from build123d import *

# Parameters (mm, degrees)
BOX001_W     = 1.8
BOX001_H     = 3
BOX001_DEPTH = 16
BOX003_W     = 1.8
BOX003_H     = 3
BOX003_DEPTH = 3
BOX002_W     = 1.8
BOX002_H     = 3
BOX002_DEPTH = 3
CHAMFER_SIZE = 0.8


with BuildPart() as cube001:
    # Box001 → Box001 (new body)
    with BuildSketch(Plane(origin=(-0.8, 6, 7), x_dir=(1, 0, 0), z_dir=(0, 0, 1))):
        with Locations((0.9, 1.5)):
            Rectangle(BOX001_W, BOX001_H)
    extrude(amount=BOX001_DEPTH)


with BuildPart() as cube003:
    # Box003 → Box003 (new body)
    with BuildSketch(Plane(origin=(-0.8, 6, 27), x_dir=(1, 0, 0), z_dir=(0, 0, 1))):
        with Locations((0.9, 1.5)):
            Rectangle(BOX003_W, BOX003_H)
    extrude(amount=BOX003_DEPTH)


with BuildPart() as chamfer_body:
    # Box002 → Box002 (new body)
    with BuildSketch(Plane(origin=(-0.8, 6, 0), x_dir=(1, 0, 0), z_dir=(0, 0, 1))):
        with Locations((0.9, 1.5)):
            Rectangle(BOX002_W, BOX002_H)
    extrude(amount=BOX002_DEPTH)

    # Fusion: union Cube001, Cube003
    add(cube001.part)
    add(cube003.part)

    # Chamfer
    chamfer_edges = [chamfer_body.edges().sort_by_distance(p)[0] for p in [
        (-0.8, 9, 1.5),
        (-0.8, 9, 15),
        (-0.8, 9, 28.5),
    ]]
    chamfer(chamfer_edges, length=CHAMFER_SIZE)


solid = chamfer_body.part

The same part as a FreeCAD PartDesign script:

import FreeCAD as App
import Part
import Sketcher
from FreeCAD import Vector
Q = App.Units.Quantity


def edges_at(feature, points):
    """Names of the edges that pass closest to the given points."""
    edges = feature.Shape.Edges
    near = lambda p: min(range(len(edges)), key=lambda i: edges[i].distToShape(Part.Vertex(*p))[0])
    return sorted({f"Edge{near(p) + 1}" for p in points})

doc = App.newDocument("Part")
body = doc.addObject("PartDesign::Body", "Body")

# Sketch on XY plane
sketch1 = body.newObject("Sketcher::SketchObject", "Sketch")
sketch1.AttachmentSupport = (doc.getObject("XY_Plane"), [""])
sketch1.MapMode = "FlatFace"
sketch1.AttachmentOffset = App.Placement(Vector(0, 0, 7), App.Rotation())
sketch1.addGeometry(Part.LineSegment(Vector(-0.8, 9, 0), Vector(-0.8, 6, 0)), False)
sketch1.addGeometry(Part.LineSegment(Vector(-0.8, 6, 0), Vector(1, 6, 0)), False)
sketch1.addGeometry(Part.LineSegment(Vector(1, 6, 0), Vector(1, 9, 0)), False)
sketch1.addGeometry(Part.LineSegment(Vector(1, 9, 0), Vector(-0.8, 9, 0)), False)
sketch1.addConstraint(Sketcher.Constraint("Coincident", 0, 2, 1, 1))
sketch1.addConstraint(Sketcher.Constraint("Coincident", 1, 2, 2, 1))
sketch1.addConstraint(Sketcher.Constraint("Coincident", 2, 2, 3, 1))
sketch1.addConstraint(Sketcher.Constraint("Coincident", 3, 2, 0, 1))
sketch1.addConstraint(Sketcher.Constraint("Vertical", 0))
sketch1.addConstraint(Sketcher.Constraint("Horizontal", 1))
sketch1.addConstraint(Sketcher.Constraint("Vertical", 2))
sketch1.addConstraint(Sketcher.Constraint("Horizontal", 3))
sketch1.addConstraint(Sketcher.Constraint("DistanceY", 0, 2, 0, 1, Q("3 mm")))
sketch1.addConstraint(Sketcher.Constraint("DistanceX", 1, 1, 1, 2, Q("1.8 mm")))
sketch1.addConstraint(Sketcher.Constraint("DistanceY", -1, 1, 0, 2, Q("6 mm")))
sketch1.addConstraint(Sketcher.Constraint("DistanceX", -1, 1, 1, 2, Q("1 mm")))
pad1 = body.newObject("PartDesign::Pad", "Pad")
pad1.Profile = sketch1
pad1.Length = 16
body2 = doc.addObject("PartDesign::Body", "Body001")

# Sketch on XY plane
sketch2 = body2.newObject("Sketcher::SketchObject", "Sketch001")
sketch2.AttachmentSupport = (doc.getObject("XY_Plane001"), [""])
sketch2.MapMode = "FlatFace"
sketch2.AttachmentOffset = App.Placement(Vector(0, 0, 27), App.Rotation())
sketch2.addGeometry(Part.LineSegment(Vector(-0.8, 9, 0), Vector(-0.8, 6, 0)), False)
sketch2.addGeometry(Part.LineSegment(Vector(-0.8, 6, 0), Vector(1, 6, 0)), False)
sketch2.addGeometry(Part.LineSegment(Vector(1, 6, 0), Vector(1, 9, 0)), False)
sketch2.addGeometry(Part.LineSegment(Vector(1, 9, 0), Vector(-0.8, 9, 0)), False)
sketch2.addConstraint(Sketcher.Constraint("Coincident", 0, 2, 1, 1))
sketch2.addConstraint(Sketcher.Constraint("Coincident", 1, 2, 2, 1))
sketch2.addConstraint(Sketcher.Constraint("Coincident", 2, 2, 3, 1))
sketch2.addConstraint(Sketcher.Constraint("Coincident", 3, 2, 0, 1))
sketch2.addConstraint(Sketcher.Constraint("Vertical", 0))
sketch2.addConstraint(Sketcher.Constraint("Horizontal", 1))
sketch2.addConstraint(Sketcher.Constraint("Vertical", 2))
sketch2.addConstraint(Sketcher.Constraint("Horizontal", 3))
sketch2.addConstraint(Sketcher.Constraint("DistanceY", 0, 2, 0, 1, Q("3 mm")))
sketch2.addConstraint(Sketcher.Constraint("DistanceX", 1, 1, 1, 2, Q("1.8 mm")))
sketch2.addConstraint(Sketcher.Constraint("DistanceY", -1, 1, 0, 2, Q("6 mm")))
sketch2.addConstraint(Sketcher.Constraint("DistanceX", -1, 1, 1, 2, Q("1 mm")))
pad2 = body2.newObject("PartDesign::Pad", "Pad001")
pad2.Profile = sketch2
pad2.Length = 3
body3 = doc.addObject("PartDesign::Body", "Body002")
body3.AllowCompound = True

# Sketch on XY plane
sketch3 = body3.newObject("Sketcher::SketchObject", "Sketch002")
sketch3.AttachmentSupport = (doc.getObject("XY_Plane002"), [""])
sketch3.MapMode = "FlatFace"
sketch3.addGeometry(Part.LineSegment(Vector(-0.8, 9, 0), Vector(-0.8, 6, 0)), False)
sketch3.addGeometry(Part.LineSegment(Vector(-0.8, 6, 0), Vector(1, 6, 0)), False)
sketch3.addGeometry(Part.LineSegment(Vector(1, 6, 0), Vector(1, 9, 0)), False)
sketch3.addGeometry(Part.LineSegment(Vector(1, 9, 0), Vector(-0.8, 9, 0)), False)
sketch3.addConstraint(Sketcher.Constraint("Coincident", 0, 2, 1, 1))
sketch3.addConstraint(Sketcher.Constraint("Coincident", 1, 2, 2, 1))
sketch3.addConstraint(Sketcher.Constraint("Coincident", 2, 2, 3, 1))
sketch3.addConstraint(Sketcher.Constraint("Coincident", 3, 2, 0, 1))
sketch3.addConstraint(Sketcher.Constraint("Vertical", 0))
sketch3.addConstraint(Sketcher.Constraint("Horizontal", 1))
sketch3.addConstraint(Sketcher.Constraint("Vertical", 2))
sketch3.addConstraint(Sketcher.Constraint("Horizontal", 3))
sketch3.addConstraint(Sketcher.Constraint("DistanceY", 0, 2, 0, 1, Q("3 mm")))
sketch3.addConstraint(Sketcher.Constraint("DistanceX", 1, 1, 1, 2, Q("1.8 mm")))
sketch3.addConstraint(Sketcher.Constraint("DistanceY", -1, 1, 0, 2, Q("6 mm")))
sketch3.addConstraint(Sketcher.Constraint("DistanceX", -1, 1, 1, 2, Q("1 mm")))
pad3 = body3.newObject("PartDesign::Pad", "Pad002")
pad3.Profile = sketch3
pad3.Length = 3
doc.recompute()

boolean = body3.newObject("PartDesign::Boolean", "Boolean")
boolean.Type = "Fuse"
boolean.addObjects([body])
doc.recompute()

boolean2 = body3.newObject("PartDesign::Boolean", "Boolean001")
boolean2.Type = "Fuse"
boolean2.addObjects([body2])
doc.recompute()

chamfer = body3.newObject("PartDesign::Chamfer", "Chamfer")
chamfer.Base = (boolean2, edges_at(boolean2, [(-0.8, 9, 1.5), (-0.8, 9, 15), (-0.8, 9, 28.5)]))
chamfer.Size = 0.8

doc.recompute()
